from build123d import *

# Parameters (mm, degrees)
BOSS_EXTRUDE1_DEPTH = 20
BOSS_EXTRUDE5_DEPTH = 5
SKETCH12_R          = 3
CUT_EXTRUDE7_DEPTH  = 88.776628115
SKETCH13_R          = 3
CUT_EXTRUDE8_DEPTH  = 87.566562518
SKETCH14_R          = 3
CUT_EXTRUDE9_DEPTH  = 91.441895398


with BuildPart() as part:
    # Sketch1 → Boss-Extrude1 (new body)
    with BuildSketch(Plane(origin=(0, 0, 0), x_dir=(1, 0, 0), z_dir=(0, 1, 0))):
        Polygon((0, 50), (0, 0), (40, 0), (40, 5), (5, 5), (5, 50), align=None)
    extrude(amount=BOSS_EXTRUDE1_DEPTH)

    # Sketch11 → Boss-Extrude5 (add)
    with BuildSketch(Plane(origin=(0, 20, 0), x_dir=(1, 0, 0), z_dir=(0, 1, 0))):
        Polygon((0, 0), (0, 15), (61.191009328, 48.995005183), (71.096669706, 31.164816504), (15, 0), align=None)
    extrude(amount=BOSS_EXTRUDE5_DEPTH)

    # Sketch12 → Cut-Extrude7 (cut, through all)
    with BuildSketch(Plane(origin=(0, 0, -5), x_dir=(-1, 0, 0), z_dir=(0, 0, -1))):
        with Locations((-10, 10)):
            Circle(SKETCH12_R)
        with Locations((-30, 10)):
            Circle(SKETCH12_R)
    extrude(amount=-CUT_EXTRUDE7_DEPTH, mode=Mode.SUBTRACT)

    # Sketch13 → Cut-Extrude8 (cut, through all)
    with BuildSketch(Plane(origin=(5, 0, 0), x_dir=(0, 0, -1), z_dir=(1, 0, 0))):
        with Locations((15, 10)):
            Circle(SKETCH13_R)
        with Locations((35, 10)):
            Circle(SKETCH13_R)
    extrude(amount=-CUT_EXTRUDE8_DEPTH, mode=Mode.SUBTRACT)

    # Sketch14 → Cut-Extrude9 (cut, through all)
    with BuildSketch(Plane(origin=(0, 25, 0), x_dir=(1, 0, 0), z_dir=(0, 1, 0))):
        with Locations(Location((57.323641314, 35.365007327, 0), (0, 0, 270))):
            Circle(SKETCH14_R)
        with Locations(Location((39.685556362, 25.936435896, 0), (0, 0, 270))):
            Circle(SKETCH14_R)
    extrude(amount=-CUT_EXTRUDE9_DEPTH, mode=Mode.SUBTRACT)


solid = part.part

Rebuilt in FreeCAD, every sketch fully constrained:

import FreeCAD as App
import Part
import Sketcher

V = App.Vector
Q = App.Units.Quantity


def add_polygon(sketch, points):
    """Adds a closed chain of lines whose ends are joined by coincident constraints."""
    first, n = sketch.GeometryCount, len(points)
    for a, b in zip(points, points[1:] + points[:1]):
        sketch.addGeometry(Part.LineSegment(App.Vector(*a, 0), App.Vector(*b, 0)), False)
    for i in range(n):
        sketch.addConstraint(Sketcher.Constraint("Coincident", first + i, 2, first + (i + 1) % n, 1))

doc = App.newDocument("Part")
body = doc.addObject("PartDesign::Body", "Body")

# Sketch on XZ plane
sketch1 = body.newObject("Sketcher::SketchObject", "Sketch")
sketch1.AttachmentSupport = (doc.getObject("XZ_Plane"), [""])
sketch1.MapMode = "FlatFace"
add_polygon(sketch1, [(0, -50), (0, 0), (40, 0), (40, -5), (5, -5), (5, -50)])  # lines 0-5
sketch1.addConstraint(Sketcher.Constraint("Vertical", 0))
sketch1.addConstraint(Sketcher.Constraint("Horizontal", 1))
sketch1.addConstraint(Sketcher.Constraint("Vertical", 2))
sketch1.addConstraint(Sketcher.Constraint("Horizontal", 3))
sketch1.addConstraint(Sketcher.Constraint("Vertical", 4))
sketch1.addConstraint(Sketcher.Constraint("Horizontal", 5))
sketch1.addConstraint(Sketcher.Constraint("Coincident", 0, 2, -1, 1))
sketch1.addConstraint(Sketcher.Constraint("Equal", 5, 2))
sketch1.addConstraint(Sketcher.Constraint("DistanceX", 1, 1, 1, 2, Q("40 mm")))
sketch1.addConstraint(Sketcher.Constraint("DistanceX", 3, 2, 3, 1, Q("35 mm")))
sketch1.addConstraint(Sketcher.Constraint("DistanceY", 0, 1, 0, 2, Q("50 mm")))
pad1 = body.newObject("PartDesign::Pad", "Pad")
pad1.Profile = sketch1
pad1.Length = 20
pad1.Reversed = True

# Sketch on XZ plane
sketch2 = body.newObject("Sketcher::SketchObject", "Sketch001")
sketch2.AttachmentSupport = (doc.getObject("XZ_Plane"), [""])
sketch2.MapMode = "FlatFace"
sketch2.AttachmentOffset = App.Placement(V(0, 0, -20), App.Rotation())
add_polygon(sketch2, [(0, -15), (0, 0), (15, 0), (71.09667, -31.164817), (61.191009, -48.995005)])  # lines 0-4
sketch2.addConstraint(Sketcher.Constraint("Vertical", 0))
sketch2.addConstraint(Sketcher.Constraint("Horizontal", 1))
sketch2.addConstraint(Sketcher.Constraint("Coincident", 0, 2, -1, 1))
sketch2.addConstraint(Sketcher.Constraint("Perpendicular", 2, 3))
sketch2.addConstraint(Sketcher.Constraint("Perpendicular", 3, 4))
sketch2.addConstraint(Sketcher.Constraint("Equal", 1, 0))
sketch2.addConstraint(Sketcher.Constraint("DistanceX", 1, 1, 1, 2, Q("15 mm")))
sketch2.addConstraint(Sketcher.Constraint("Distance", 4, Q("70 mm")))
sketch2.addConstraint(Sketcher.Constraint("DistanceX", -1, 1, 2, 2, Q("71.09667 mm")))
pad2 = body.newObject("PartDesign::Pad", "Pad001")
pad2.Profile = sketch2
pad2.Length = 5
pad2.Reversed = True

# Sketch on XY plane
sketch3 = body.newObject("Sketcher::SketchObject", "Sketch002")
sketch3.AttachmentSupport = (doc.getObject("XY_Plane"), [""])
sketch3.MapMode = "FlatFace"
sketch3.AttachmentOffset = App.Placement(V(0, 0, -5), App.Rotation())
sketch3.addGeometry(Part.Circle(V(10, 10, 0), V(0, 0, 1), 3), False)
sketch3.addGeometry(Part.Circle(V(30, 10, 0), V(0, 0, 1), 3), False)
sketch3.addConstraint(Sketcher.Constraint("Equal", 0, 1))
sketch3.addConstraint(Sketcher.Constraint("Horizontal", 0, 3, 1, 3))
sketch3.addConstraint(Sketcher.Constraint("Diameter", 0, Q("6 mm")))
sketch3.addConstraint(Sketcher.Constraint("DistanceX", -1, 1, 0, 3, Q("10 mm")))
sketch3.addConstraint(Sketcher.Constraint("DistanceY", -1, 1, 0, 3, Q("10 mm")))
sketch3.addConstraint(Sketcher.Constraint("DistanceX", -1, 1, 1, 3, Q("30 mm")))
pocket1 = body.newObject("PartDesign::Pocket", "Pocket")
pocket1.Profile = sketch3
pocket1.Type = "ThroughAll"
pocket1.Reversed = True

# Sketch on YZ plane
sketch4 = body.newObject("Sketcher::SketchObject", "Sketch003")
sketch4.AttachmentSupport = (doc.getObject("YZ_Plane"), [""])
sketch4.MapMode = "FlatFace"
sketch4.AttachmentOffset = App.Placement(V(0, 0, 5), App.Rotation())
sketch4.addGeometry(Part.Circle(V(10, -15, 0), V(0, 0, 1), 3), False)
sketch4.addGeometry(Part.Circle(V(10, -35, 0), V(0, 0, 1), 3), False)
sketch4.addConstraint(Sketcher.Constraint("Equal", 0, 1))
sketch4.addConstraint(Sketcher.Constraint("Vertical", 0, 3, 1, 3))
sketch4.addConstraint(Sketcher.Constraint("Diameter", 0, Q("6 mm")))
sketch4.addConstraint(Sketcher.Constraint("DistanceX", -1, 1, 0, 3, Q("10 mm")))
sketch4.addConstraint(Sketcher.Constraint("DistanceY", 0, 3, -1, 1, Q("15 mm")))
sketch4.addConstraint(Sketcher.Constraint("DistanceY", 1, 3, -1, 1, Q("35 mm")))
pocket2 = body.newObject("PartDesign::Pocket", "Pocket001")
pocket2.Profile = sketch4
pocket2.Type = "ThroughAll"

# Sketch on XZ plane
sketch5 = body.newObject("Sketcher::SketchObject", "Sketch004")
sketch5.AttachmentSupport = (doc.getObject("XZ_Plane"), [""])
sketch5.MapMode = "FlatFace"
sketch5.AttachmentOffset = App.Placement(V(0, 0, -25), App.Rotation())
sketch5.addGeometry(Part.Circle(V(57.323641, -35.365007, 0), V(0, 0, 1), 3), False)
sketch5.addGeometry(Part.Circle(V(39.685556, -25.936436, 0), V(0, 0, 1), 3), False)
sketch5.addConstraint(Sketcher.Constraint("Equal", 0, 1))
sketch5.addConstraint(Sketcher.Constraint("Diameter", 0, Q("6 mm")))
sketch5.addConstraint(Sketcher.Constraint("DistanceX", -1, 1, 0, 3, Q("57.323641 mm")))
sketch5.addConstraint(Sketcher.Constraint("DistanceY", 0, 3, 1, 3, Q("9.428571 mm")))
sketch5.addConstraint(Sketcher.Constraint("DistanceY", 0, 3, -1, 1, Q("35.365007 mm")))
sketch5.addConstraint(Sketcher.Constraint("DistanceX", -1, 1, 1, 3, Q("39.685556 mm")))
pocket3 = body.newObject("PartDesign::Pocket", "Pocket002")
pocket3.Profile = sketch5
pocket3.Type = "ThroughAll"
pocket3.Reversed = True

doc.recompute()
